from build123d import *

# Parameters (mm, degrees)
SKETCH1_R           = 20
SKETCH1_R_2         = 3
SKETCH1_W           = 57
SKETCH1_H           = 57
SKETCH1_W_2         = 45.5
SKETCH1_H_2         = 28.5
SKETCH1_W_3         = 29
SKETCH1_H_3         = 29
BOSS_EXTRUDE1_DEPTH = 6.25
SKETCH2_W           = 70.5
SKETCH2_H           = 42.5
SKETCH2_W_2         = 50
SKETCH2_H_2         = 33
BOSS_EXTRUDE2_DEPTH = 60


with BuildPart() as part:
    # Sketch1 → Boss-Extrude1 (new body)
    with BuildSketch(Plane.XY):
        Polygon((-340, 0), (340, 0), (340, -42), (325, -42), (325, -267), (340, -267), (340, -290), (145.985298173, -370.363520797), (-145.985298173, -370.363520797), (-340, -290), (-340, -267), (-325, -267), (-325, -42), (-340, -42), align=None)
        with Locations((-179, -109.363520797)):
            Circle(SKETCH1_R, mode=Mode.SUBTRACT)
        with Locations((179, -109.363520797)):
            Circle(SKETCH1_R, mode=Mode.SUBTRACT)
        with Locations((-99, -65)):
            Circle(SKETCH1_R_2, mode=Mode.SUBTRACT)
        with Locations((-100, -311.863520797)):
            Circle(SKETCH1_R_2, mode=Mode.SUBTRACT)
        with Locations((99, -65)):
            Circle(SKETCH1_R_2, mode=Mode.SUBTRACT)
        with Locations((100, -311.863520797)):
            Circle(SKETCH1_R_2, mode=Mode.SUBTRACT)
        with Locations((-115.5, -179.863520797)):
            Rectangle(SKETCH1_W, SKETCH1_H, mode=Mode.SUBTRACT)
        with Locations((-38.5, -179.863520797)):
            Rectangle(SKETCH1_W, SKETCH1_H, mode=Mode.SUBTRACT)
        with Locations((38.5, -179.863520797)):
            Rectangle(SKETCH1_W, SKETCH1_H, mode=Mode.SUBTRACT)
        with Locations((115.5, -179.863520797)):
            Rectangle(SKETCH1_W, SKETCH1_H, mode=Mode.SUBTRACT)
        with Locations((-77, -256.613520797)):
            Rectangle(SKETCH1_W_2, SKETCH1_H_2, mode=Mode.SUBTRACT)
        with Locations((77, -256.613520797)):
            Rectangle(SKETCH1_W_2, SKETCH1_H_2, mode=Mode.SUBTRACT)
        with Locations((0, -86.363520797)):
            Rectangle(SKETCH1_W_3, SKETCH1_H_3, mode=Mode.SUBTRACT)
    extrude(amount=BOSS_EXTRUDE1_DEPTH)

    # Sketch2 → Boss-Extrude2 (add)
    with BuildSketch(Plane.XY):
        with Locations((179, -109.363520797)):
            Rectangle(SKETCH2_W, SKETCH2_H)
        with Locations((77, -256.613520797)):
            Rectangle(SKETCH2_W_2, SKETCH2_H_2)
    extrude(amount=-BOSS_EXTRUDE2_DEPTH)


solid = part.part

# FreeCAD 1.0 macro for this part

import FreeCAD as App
import Part
import Sketcher
from FreeCAD import Vector
Q = App.Units.Quantity

doc = App.newDocument("Part")
body = doc.addObject("PartDesign::Body", "Body")

# Sketch on XY plane
sketch1 = body.newObject("Sketcher::SketchObject", "Sketch")
sketch1.AttachmentSupport = (doc.getObject("XY_Plane"), [""])
sketch1.MapMode = "FlatFace"
sketch1.addGeometry(Part.LineSegment(Vector(340, 0, 0), Vector(-340, 0, 0)), False)
sketch1.addGeometry(Part.LineSegment(Vector(-340, 0, 0), Vector(-340, -42, 0)), False)
sketch1.addGeometry(Part.LineSegment(Vector(-340, -42, 0), Vector(-325, -42, 0)), False)
sketch1.addGeometry(Part.LineSegment(Vector(-325, -42, 0), Vector(-325, -267, 0)), False)
sketch1.addGeometry(Part.LineSegment(Vector(-325, -267, 0), Vector(-340, -267, 0)), False)
sketch1.addGeometry(Part.LineSegment(Vector(-340, -267, 0), Vector(-340, -290, 0)), False)
sketch1.addGeometry(Part.LineSegment(Vector(-340, -290, 0), Vector(-145.985298, -370.363521, 0)), False)
sketch1.addGeometry(Part.LineSegment(Vector(-145.985298, -370.363521, 0), Vector(145.985298, -370.363521, 0)), False)
sketch1.addGeometry(Part.LineSegment(Vector(145.985298, -370.363521, 0), Vector(340, -290, 0)), False)
sketch1.addGeometry(Part.LineSegment(Vector(340, -290, 0), Vector(340, -267, 0)), False)
sketch1.addGeometry(Part.LineSegment(Vector(340, -267, 0), Vector(325, -267, 0)), False)
sketch1.addGeometry(Part.LineSegment(Vector(325, -267, 0), Vector(325, -42, 0)), False)
sketch1.addGeometry(Part.LineSegment(Vector(325, -42, 0), Vector(340, -42, 0)), False)
sketch1.addGeometry(Part.LineSegment(Vector(340, -42, 0), Vector(340, 0, 0)), False)
sketch1.addGeometry(Part.Circle(Vector(100, -311.863521, 0), Vector(0, 0, 1), 3), False)
sketch1.addGeometry(Part.LineSegment(Vector(54.25, -270.863521, 0), Vector(54.25, -242.363521, 0)), False)
sketch1.addGeometry(Part.LineSegment(Vector(54.25, -242.363521, 0), Vector(99.75, -242.363521, 0)), False)
sketch1.addGeometry(Part.LineSegment(Vector(99.75, -242.363521, 0), Vector(99.75, -270.863521, 0)), False)
sketch1.addGeometry(Part.LineSegment(Vector(99.75, -270.863521, 0), Vector(54.25, -270.863521, 0)), False)
sketch1.addGeometry(Part.LineSegment(Vector(-99.75, -270.863521, 0), Vector(-99.75, -242.363521, 0)), False)
sketch1.addGeometry(Part.LineSegment(Vector(-99.75, -242.363521, 0), Vector(-54.25, -242.363521, 0)), False)
sketch1.addGeometry(Part.LineSegment(Vector(-54.25, -242.363521, 0), Vector(-54.25, -270.863521, 0)), False)
sketch1.addGeometry(Part.LineSegment(Vector(-54.25, -270.863521, 0), Vector(-99.75, -270.863521, 0)), False)
sketch1.addGeometry(Part.Circle(Vector(-100, -311.863521, 0), Vector(0, 0, 1), 3), False)
sketch1.addGeometry(Part.LineSegment(Vector(87, -208.363521, 0), Vector(87, -151.363521, 0)), False)
sketch1.addGeometry(Part.LineSegment(Vector(87, -151.363521, 0), Vector(144, -151.363521, 0)), False)
sketch1.addGeometry(Part.LineSegment(Vector(144, -151.363521, 0), Vector(144, -208.363521, 0)), False)
sketch1.addGeometry(Part.LineSegment(Vector(144, -208.363521, 0), Vector(87, -208.363521, 0)), False)
sketch1.addGeometry(Part.LineSegment(Vector(10, -208.363521, 0), Vector(10, -151.363521, 0)), False)
sketch1.addGeometry(Part.LineSegment(Vector(10, -151.363521, 0), Vector(67, -151.363521, 0)), False)
sketch1.addGeometry(Part.LineSegment(Vector(67, -151.363521, 0), Vector(67, -208.363521, 0)), False)
sketch1.addGeometry(Part.LineSegment(Vector(67, -208.363521, 0), Vector(10, -208.363521, 0)), False)
sketch1.addGeometry(Part.Circle(Vector(179, -109.363521, 0), Vector(0, 0, 1), 20), False)
sketch1.addGeometry(Part.Circle(Vector(99, -65, 0), Vector(0, 0, 1), 3), False)
sketch1.addGeometry(Part.LineSegment(Vector(-67, -208.363521, 0), Vector(-67, -151.363521, 0)), False)
sketch1.addGeometry(Part.LineSegment(Vector(-67, -151.363521, 0), Vector(-10, -151.363521, 0)), False)
sketch1.addGeometry(Part.LineSegment(Vector(-10, -151.363521, 0), Vector(-10, -208.363521, 0)), False)
sketch1.addGeometry(Part.LineSegment(Vector(-10, -208.363521, 0), Vector(-67, -208.363521, 0)), False)
sketch1.addGeometry(Part.LineSegment(Vector(-144, -208.363521, 0), Vector(-144, -151.363521, 0)), False)
sketch1.addGeometry(Part.LineSegment(Vector(-144, -151.363521, 0), Vector(-87, -151.363521, 0)), False)
sketch1.addGeometry(Part.LineSegment(Vector(-87, -151.363521, 0), Vector(-87, -208.363521, 0)), False)
sketch1.addGeometry(Part.LineSegment(Vector(-87, -208.363521, 0), Vector(-144, -208.363521, 0)), False)
sketch1.addGeometry(Part.LineSegment(Vector(-14.5, -100.863521, 0), Vector(-14.5, -71.863521, 0)), False)
sketch1.addGeometry(Part.LineSegment(Vector(-14.5, -71.863521, 0), Vector(14.5, -71.863521, 0)), False)
sketch1.addGeometry(Part.LineSegment(Vector(14.5, -71.863521, 0), Vector(14.5, -100.863521, 0)), False)
sketch1.addGeometry(Part.LineSegment(Vector(14.5, -100.863521, 0), Vector(-14.5, -100.863521, 0)), False)
sketch1.addGeometry(Part.Circle(Vector(-99, -65, 0), Vector(0, 0, 1), 3), False)
sketch1.addGeometry(Part.Circle(Vector(-179, -109.363521, 0), Vector(0, 0, 1), 20), False)
sketch1.addConstraint(Sketcher.Constraint("Coincident", 0, 2, 1, 1))
sketch1.addConstraint(Sketcher.Constraint("Coincident", 1, 2, 2, 1))
sketch1.addConstraint(Sketcher.Constraint("Coincident", 2, 2, 3, 1))
sketch1.addConstraint(Sketcher.Constraint("Coincident", 3, 2, 4, 1))
sketch1.addConstraint(Sketcher.Constraint("Coincident", 4, 2, 5, 1))
sketch1.addConstraint(Sketcher.Constraint("Coincident", 5, 2, 6, 1))
sketch1.addConstraint(Sketcher.Constraint("Coincident", 6, 2, 7, 1))
sketch1.addConstraint(Sketcher.Constraint("Coincident", 7, 2, 8, 1))
sketch1.addConstraint(Sketcher.Constraint("Coincident", 8, 2, 9, 1))
sketch1.addConstraint(Sketcher.Constraint("Coincident", 9, 2, 10, 1))
sketch1.addConstraint(Sketcher.Constraint("Coincident", 10, 2, 11, 1))
sketch1.addConstraint(Sketcher.Constraint("Coincident", 11, 2, 12, 1))
sketch1.addConstraint(Sketcher.Constraint("Coincident", 12, 2, 13, 1))
sketch1.addConstraint(Sketcher.Constraint("Coincident", 13, 2, 0, 1))
sketch1.addConstraint(Sketcher.Constraint("Coincident", 15, 2, 16, 1))
sketch1.addConstraint(Sketcher.Constraint("Coincident", 16, 2, 17, 1))
sketch1.addConstraint(Sketcher.Constraint("Coincident", 17, 2, 18, 1))
sketch1.addConstraint(Sketcher.Constraint("Coincident", 18, 2, 15, 1))
sketch1.addConstraint(Sketcher.Constraint("Coincident", 19, 2, 20, 1))
sketch1.addConstraint(Sketcher.Constraint("Coincident", 20, 2, 21, 1))
sketch1.addConstraint(Sketcher.Constraint("Coincident", 21, 2, 22, 1))
sketch1.addConstraint(Sketcher.Constraint("Coincident", 22, 2, 19, 1))
sketch1.addConstraint(Sketcher.Constraint("Coincident", 24, 2, 25, 1))
sketch1.addConstraint(Sketcher.Constraint("Coincident", 25, 2, 26, 1))
sketch1.addConstraint(Sketcher.Constraint("Coincident", 26, 2, 27, 1))
sketch1.addConstraint(Sketcher.Constraint("Coincident", 27, 2, 24, 1))
sketch1.addConstraint(Sketcher.Constraint("Coincident", 28, 2, 29, 1))
sketch1.addConstraint(Sketcher.Constraint("Coincident", 29, 2, 30, 1))
sketch1.addConstraint(Sketcher.Constraint("Coincident", 30, 2, 31, 1))
sketch1.addConstraint(Sketcher.Constraint("Coincident", 31, 2, 28, 1))
sketch1.addConstraint(Sketcher.Constraint("Coincident", 34, 2, 35, 1))
sketch1.addConstraint(Sketcher.Constraint("Coincident", 35, 2, 36, 1))
sketch1.addConstraint(Sketcher.Constraint("Coincident", 36, 2, 37, 1))
sketch1.addConstraint(Sketcher.Constraint("Coincident", 37, 2, 34, 1))
sketch1.addConstraint(Sketcher.Constraint("Coincident", 38, 2, 39, 1))
sketch1.addConstraint(Sketcher.Constraint("Coincident", 39, 2, 40, 1))
sketch1.addConstraint(Sketcher.Constraint("Coincident", 40, 2, 41, 1))
sketch1.addConstraint(Sketcher.Constraint("Coincident", 41, 2, 38, 1))
sketch1.addConstraint(Sketcher.Constraint("Coincident", 42, 2, 43, 1))
sketch1.addConstraint(Sketcher.Constraint("Coincident", 43, 2, 44, 1))
sketch1.addConstraint(Sketcher.Constraint("Coincident", 44, 2, 45, 1))
sketch1.addConstraint(Sketcher.Constraint("Coincident", 45, 2, 42, 1))
sketch1.addConstraint(Sketcher.Constraint("Horizontal", 0))
sketch1.addConstraint(Sketcher.Constraint("Vertical", 1))
sketch1.addConstraint(Sketcher.Constraint("Horizontal", 2))
sketch1.addConstraint(Sketcher.Constraint("Vertical", 3))
sketch1.addConstraint(Sketcher.Constraint("Horizontal", 4))
sketch1.addConstraint(Sketcher.Constraint("Vertical", 5))
sketch1.addConstraint(Sketcher.Constraint("Horizontal", 7))
sketch1.addConstraint(Sketcher.Constraint("Vertical", 9))
sketch1.addConstraint(Sketcher.Constraint("Horizontal", 10))
sketch1.addConstraint(Sketcher.Constraint("Vertical", 11))
sketch1.addConstraint(Sketcher.Constraint("Horizontal", 12))
sketch1.addConstraint(Sketcher.Constraint("Vertical", 13))
sketch1.addConstraint(Sketcher.Constraint("Vertical", 15))
sketch1.addConstraint(Sketcher.Constraint("Horizontal", 16))
sketch1.addConstraint(Sketcher.Constraint("Vertical", 17))
sketch1.addConstraint(Sketcher.Constraint("Horizontal", 18))
sketch1.addConstraint(Sketcher.Constraint("Vertical", 19))
sketch1.addConstraint(Sketcher.Constraint("Horizontal", 20))
sketch1.addConstraint(Sketcher.Constraint("Vertical", 21))
sketch1.addConstraint(Sketcher.Constraint("Horizontal", 22))
sketch1.addConstraint(Sketcher.Constraint("Vertical", 24))
sketch1.addConstraint(Sketcher.Constraint("Horizontal", 25))
sketch1.addConstraint(Sketcher.Constraint("Vertical", 26))
sketch1.addConstraint(Sketcher.Constraint("Horizontal", 27))
sketch1.addConstraint(Sketcher.Constraint("Vertical", 28))
sketch1.addConstraint(Sketcher.Constraint("Horizontal", 29))
sketch1.addConstraint(Sketcher.Constraint("Vertical", 30))
sketch1.addConstraint(Sketcher.Constraint("Horizontal", 31))
sketch1.addConstraint(Sketcher.Constraint("Vertical", 34))
sketch1.addConstraint(Sketcher.Constraint("Horizontal", 35))
sketch1.addConstraint(Sketcher.Constraint("Vertical", 36))
sketch1.addConstraint(Sketcher.Constraint("Horizontal", 37))
sketch1.addConstraint(Sketcher.Constraint("Vertical", 38))
sketch1.addConstraint(Sketcher.Constraint("Horizontal", 39))
sketch1.addConstraint(Sketcher.Constraint("Vertical", 40))
sketch1.addConstraint(Sketcher.Constraint("Horizontal", 41))
sketch1.addConstraint(Sketcher.Constraint("Vertical", 42))
sketch1.addConstraint(Sketcher.Constraint("Horizontal", 43))
sketch1.addConstraint(Sketcher.Constraint("Vertical", 44))
sketch1.addConstraint(Sketcher.Constraint("Horizontal", 45))
sketch1.addConstraint(Sketcher.Constraint("Equal", 14, 23))
sketch1.addConstraint(Sketcher.Constraint("Equal", 23, 33))
sketch1.addConstraint(Sketcher.Constraint("Equal", 33, 46))
sketch1.addConstraint(Sketcher.Constraint("Equal", 32, 47))
sketch1.addConstraint(Sketcher.Constraint("Symmetric", 0, 2, 13, 2, -1, 1))
sketch1.addConstraint(Sketcher.Constraint("Symmetric", 14, 3, 23, 3, -2))
sketch1.addConstraint(Sketcher.Constraint("Symmetric", 33, 3, 46, 3, -2))
sketch1.addConstraint(Sketcher.Constraint("Symmetric", 32, 3, 47, 3, -2))
sketch1.addConstraint(Sketcher.Constraint("Symmetric", 5, 2, 8, 2, -2))
sketch1.addConstraint(Sketcher.Constraint("Symmetric", 3, 2, 10, 2, -2))
sketch1.addConstraint(Sketcher.Constraint("Symmetric", 16, 2, 19, 2, -2))
sketch1.addConstraint(Sketcher.Constraint("Symmetric", 18, 2, 21, 2, -2))
sketch1.addConstraint(Sketcher.Constraint("Symmetric", 29, 2, 34, 2, -2))
sketch1.addConstraint(Sketcher.Constraint("Symmetric", 31, 2, 36, 2, -2))
sketch1.addConstraint(Sketcher.Constraint("Symmetric", 25, 2, 38, 2, -2))
sketch1.addConstraint(Sketcher.Constraint("Symmetric", 27, 2, 40, 2, -2))
sketch1.addConstraint(Sketcher.Constraint("Horizontal", 2, 2, 11, 2))
sketch1.addConstraint(Sketcher.Constraint("Horizontal", 25, 2, 28, 2))
sketch1.addConstraint(Sketcher.Constraint("Horizontal", 27, 2, 30, 2))
sketch1.addConstraint(Sketcher.Constraint("Vertical", 1, 2, 4, 2))
sketch1.addConstraint(Sketcher.Constraint("Equal", 27, 29))
sketch1.addConstraint(Sketcher.Constraint("Equal", 41, 24))
sketch1.addConstraint(Sketcher.Constraint("Equal", 45, 42))
sketch1.addConstraint(Sketcher.Constraint("Equal", 6, 8))
sketch1.addConstraint(Sketcher.Constraint("Diameter", 14, 6.0))
sketch1.addConstraint(Sketcher.Constraint("Diameter", 32, 40.0))
sketch1.addConstraint(Sketcher.Constraint("DistanceX", 0, 2, 0, 1, 680.0))
sketch1.addConstraint(Sketcher.Constraint("DistanceX", 2, 1, 2, 2, 15.0))
sketch1.addConstraint(Sketcher.Constraint("DistanceX", 25, 1, 25, 2, 57.0))
sketch1.addConstraint(Sketcher.Constraint("DistanceX", 43, 1, 43, 2, 29.0))
sketch1.addConstraint(Sketcher.Constraint("DistanceY", 1, 2, 1, 1, 42.0))
sketch1.addConstraint(Sketcher.Constraint("DistanceY", 3, 2, 3, 1, 225.0))
sketch1.addConstraint(Sketcher.Constraint("DistanceY", 5, 2, 5, 1, 23.0))
sketch1.addConstraint(Sketcher.Constraint("Distance", 6, 210.0))
sketch1.addConstraint(Sketcher.Constraint("DistanceX", 16, 1, 16, 2, 45.5))
sketch1.addConstraint(Sketcher.Constraint("DistanceY", 15, 1, 15, 2, 28.5))
sketch1.addConstraint(Sketcher.Constraint("DistanceX", -1, 1, 14, 3, 100.0))
sketch1.addConstraint(Sketcher.Constraint("DistanceX", -1, 1, 32, 3, 179.0))
sketch1.addConstraint(Sketcher.Constraint("DistanceX", -1, 1, 33, 3, 99.0))
sketch1.addConstraint(Sketcher.Constraint("DistanceY", 33, 3, -1, 1, 65.0))
sketch1.addConstraint(Sketcher.Constraint("DistanceX", -1, 1, 24, 2, 87.0))
sketch1.addConstraint(Sketcher.Constraint("DistanceX", -1, 1, 28, 2, 10.0))
sketch1.addConstraint(Sketcher.Constraint("Angle", 6, Q("-22.5 deg")))
sketch1.addConstraint(Sketcher.Constraint("DistanceY", 7, 2, 32, 3, 261.0))
sketch1.addConstraint(Sketcher.Constraint("DistanceY", 7, 2, 15, 2, 128.0))
sketch1.addConstraint(Sketcher.Constraint("DistanceY", 14, 3, 17, 2, 41.0))
sketch1.addConstraint(Sketcher.Constraint("DistanceX", 19, 2, 15, 2, 154.0))
sketch1.addConstraint(Sketcher.Constraint("DistanceY", 16, 2, 24, 2, 91.0))
sketch1.addConstraint(Sketcher.Constraint("DistanceX", 42, 2, -1, 1, 14.5))
sketch1.addConstraint(Sketcher.Constraint("DistanceY", 35, 2, 42, 2, 79.5))
pad1 = body.newObject("PartDesign::Pad", "Pad")
pad1.Profile = sketch1
pad1.Length = 6.25

# Sketch on XY plane
sketch2 = body.newObject("Sketcher::SketchObject", "Sketch001")
sketch2.AttachmentSupport = (doc.getObject("XY_Plane"), [""])
sketch2.MapMode = "FlatFace"
sketch2.addGeometry(Part.LineSegment(Vector(143.75, -88.113521, 0), Vector(143.75, -130.613521, 0)), False)
sketch2.addGeometry(Part.LineSegment(Vector(143.75, -130.613521, 0), Vector(214.25, -130.613521, 0)), False)
sketch2.addGeometry(Part.LineSegment(Vector(214.25, -130.613521, 0), Vector(214.25, -88.113521, 0)), False)
sketch2.addGeometry(Part.LineSegment(Vector(214.25, -88.113521, 0), Vector(143.75, -88.113521, 0)), False)
sketch2.addGeometry(Part.LineSegment(Vector(52, -240.113521, 0), Vector(52, -273.113521, 0)), False)
sketch2.addGeometry(Part.LineSegment(Vector(52, -273.113521, 0), Vector(102, -273.113521, 0)), False)
sketch2.addGeometry(Part.LineSegment(Vector(102, -273.113521, 0), Vector(102, -240.113521, 0)), False)
sketch2.addGeometry(Part.LineSegment(Vector(102, -240.113521, 0), Vector(52, -240.113521, 0)), False)
sketch2.addConstraint(Sketcher.Constraint("Coincident", 0, 2, 1, 1))
sketch2.addConstraint(Sketcher.Constraint("Coincident", 1, 2, 2, 1))
sketch2.addConstraint(Sketcher.Constraint("Coincident", 2, 2, 3, 1))
sketch2.addConstraint(Sketcher.Constraint("Coincident", 3, 2, 0, 1))
sketch2.addConstraint(Sketcher.Constraint("Coincident", 4, 2, 5, 1))
sketch2.addConstraint(Sketcher.Constraint("Coincident", 5, 2, 6, 1))
sketch2.addConstraint(Sketcher.Constraint("Coincident", 6, 2, 7, 1))
sketch2.addConstraint(Sketcher.Constraint("Coincident", 7, 2, 4, 1))
sketch2.addConstraint(Sketcher.Constraint("Vertical", 0))
sketch2.addConstraint(Sketcher.Constraint("Horizontal", 1))
sketch2.addConstraint(Sketcher.Constraint("Vertical", 2))
sketch2.addConstraint(Sketcher.Constraint("Horizontal", 3))
sketch2.addConstraint(Sketcher.Constraint("Vertical", 4))
sketch2.addConstraint(Sketcher.Constraint("Horizontal", 5))
sketch2.addConstraint(Sketcher.Constraint("Vertical", 6))
sketch2.addConstraint(Sketcher.Constraint("Horizontal", 7))
sketch2.addConstraint(Sketcher.Constraint("DistanceX", 5, 1, 5, 2, 50.0))
sketch2.addConstraint(Sketcher.Constraint("DistanceY", 4, 2, 4, 1, 33.0))
sketch2.addConstraint(Sketcher.Constraint("DistanceX", 1, 1, 1, 2, 70.5))
sketch2.addConstraint(Sketcher.Constraint("DistanceY", 0, 2, 0, 1, 42.5))
sketch2.addConstraint(Sketcher.Constraint("DistanceX", -1, 1, 4, 2, 52.0))
sketch2.addConstraint(Sketcher.Constraint("DistanceY", 4, 2, 3, 2, 185.0))
sketch2.addConstraint(Sketcher.Constraint("DistanceX", -1, 1, 0, 2, 143.75))
sketch2.addConstraint(Sketcher.Constraint("DistanceY", 0, 2, -1, 1, 130.613521))
pad2 = body.newObject("PartDesign::Pad", "Pad001")
pad2.Profile = sketch2
pad2.Length = 60
pad2.Reversed = True

doc.recompute()
